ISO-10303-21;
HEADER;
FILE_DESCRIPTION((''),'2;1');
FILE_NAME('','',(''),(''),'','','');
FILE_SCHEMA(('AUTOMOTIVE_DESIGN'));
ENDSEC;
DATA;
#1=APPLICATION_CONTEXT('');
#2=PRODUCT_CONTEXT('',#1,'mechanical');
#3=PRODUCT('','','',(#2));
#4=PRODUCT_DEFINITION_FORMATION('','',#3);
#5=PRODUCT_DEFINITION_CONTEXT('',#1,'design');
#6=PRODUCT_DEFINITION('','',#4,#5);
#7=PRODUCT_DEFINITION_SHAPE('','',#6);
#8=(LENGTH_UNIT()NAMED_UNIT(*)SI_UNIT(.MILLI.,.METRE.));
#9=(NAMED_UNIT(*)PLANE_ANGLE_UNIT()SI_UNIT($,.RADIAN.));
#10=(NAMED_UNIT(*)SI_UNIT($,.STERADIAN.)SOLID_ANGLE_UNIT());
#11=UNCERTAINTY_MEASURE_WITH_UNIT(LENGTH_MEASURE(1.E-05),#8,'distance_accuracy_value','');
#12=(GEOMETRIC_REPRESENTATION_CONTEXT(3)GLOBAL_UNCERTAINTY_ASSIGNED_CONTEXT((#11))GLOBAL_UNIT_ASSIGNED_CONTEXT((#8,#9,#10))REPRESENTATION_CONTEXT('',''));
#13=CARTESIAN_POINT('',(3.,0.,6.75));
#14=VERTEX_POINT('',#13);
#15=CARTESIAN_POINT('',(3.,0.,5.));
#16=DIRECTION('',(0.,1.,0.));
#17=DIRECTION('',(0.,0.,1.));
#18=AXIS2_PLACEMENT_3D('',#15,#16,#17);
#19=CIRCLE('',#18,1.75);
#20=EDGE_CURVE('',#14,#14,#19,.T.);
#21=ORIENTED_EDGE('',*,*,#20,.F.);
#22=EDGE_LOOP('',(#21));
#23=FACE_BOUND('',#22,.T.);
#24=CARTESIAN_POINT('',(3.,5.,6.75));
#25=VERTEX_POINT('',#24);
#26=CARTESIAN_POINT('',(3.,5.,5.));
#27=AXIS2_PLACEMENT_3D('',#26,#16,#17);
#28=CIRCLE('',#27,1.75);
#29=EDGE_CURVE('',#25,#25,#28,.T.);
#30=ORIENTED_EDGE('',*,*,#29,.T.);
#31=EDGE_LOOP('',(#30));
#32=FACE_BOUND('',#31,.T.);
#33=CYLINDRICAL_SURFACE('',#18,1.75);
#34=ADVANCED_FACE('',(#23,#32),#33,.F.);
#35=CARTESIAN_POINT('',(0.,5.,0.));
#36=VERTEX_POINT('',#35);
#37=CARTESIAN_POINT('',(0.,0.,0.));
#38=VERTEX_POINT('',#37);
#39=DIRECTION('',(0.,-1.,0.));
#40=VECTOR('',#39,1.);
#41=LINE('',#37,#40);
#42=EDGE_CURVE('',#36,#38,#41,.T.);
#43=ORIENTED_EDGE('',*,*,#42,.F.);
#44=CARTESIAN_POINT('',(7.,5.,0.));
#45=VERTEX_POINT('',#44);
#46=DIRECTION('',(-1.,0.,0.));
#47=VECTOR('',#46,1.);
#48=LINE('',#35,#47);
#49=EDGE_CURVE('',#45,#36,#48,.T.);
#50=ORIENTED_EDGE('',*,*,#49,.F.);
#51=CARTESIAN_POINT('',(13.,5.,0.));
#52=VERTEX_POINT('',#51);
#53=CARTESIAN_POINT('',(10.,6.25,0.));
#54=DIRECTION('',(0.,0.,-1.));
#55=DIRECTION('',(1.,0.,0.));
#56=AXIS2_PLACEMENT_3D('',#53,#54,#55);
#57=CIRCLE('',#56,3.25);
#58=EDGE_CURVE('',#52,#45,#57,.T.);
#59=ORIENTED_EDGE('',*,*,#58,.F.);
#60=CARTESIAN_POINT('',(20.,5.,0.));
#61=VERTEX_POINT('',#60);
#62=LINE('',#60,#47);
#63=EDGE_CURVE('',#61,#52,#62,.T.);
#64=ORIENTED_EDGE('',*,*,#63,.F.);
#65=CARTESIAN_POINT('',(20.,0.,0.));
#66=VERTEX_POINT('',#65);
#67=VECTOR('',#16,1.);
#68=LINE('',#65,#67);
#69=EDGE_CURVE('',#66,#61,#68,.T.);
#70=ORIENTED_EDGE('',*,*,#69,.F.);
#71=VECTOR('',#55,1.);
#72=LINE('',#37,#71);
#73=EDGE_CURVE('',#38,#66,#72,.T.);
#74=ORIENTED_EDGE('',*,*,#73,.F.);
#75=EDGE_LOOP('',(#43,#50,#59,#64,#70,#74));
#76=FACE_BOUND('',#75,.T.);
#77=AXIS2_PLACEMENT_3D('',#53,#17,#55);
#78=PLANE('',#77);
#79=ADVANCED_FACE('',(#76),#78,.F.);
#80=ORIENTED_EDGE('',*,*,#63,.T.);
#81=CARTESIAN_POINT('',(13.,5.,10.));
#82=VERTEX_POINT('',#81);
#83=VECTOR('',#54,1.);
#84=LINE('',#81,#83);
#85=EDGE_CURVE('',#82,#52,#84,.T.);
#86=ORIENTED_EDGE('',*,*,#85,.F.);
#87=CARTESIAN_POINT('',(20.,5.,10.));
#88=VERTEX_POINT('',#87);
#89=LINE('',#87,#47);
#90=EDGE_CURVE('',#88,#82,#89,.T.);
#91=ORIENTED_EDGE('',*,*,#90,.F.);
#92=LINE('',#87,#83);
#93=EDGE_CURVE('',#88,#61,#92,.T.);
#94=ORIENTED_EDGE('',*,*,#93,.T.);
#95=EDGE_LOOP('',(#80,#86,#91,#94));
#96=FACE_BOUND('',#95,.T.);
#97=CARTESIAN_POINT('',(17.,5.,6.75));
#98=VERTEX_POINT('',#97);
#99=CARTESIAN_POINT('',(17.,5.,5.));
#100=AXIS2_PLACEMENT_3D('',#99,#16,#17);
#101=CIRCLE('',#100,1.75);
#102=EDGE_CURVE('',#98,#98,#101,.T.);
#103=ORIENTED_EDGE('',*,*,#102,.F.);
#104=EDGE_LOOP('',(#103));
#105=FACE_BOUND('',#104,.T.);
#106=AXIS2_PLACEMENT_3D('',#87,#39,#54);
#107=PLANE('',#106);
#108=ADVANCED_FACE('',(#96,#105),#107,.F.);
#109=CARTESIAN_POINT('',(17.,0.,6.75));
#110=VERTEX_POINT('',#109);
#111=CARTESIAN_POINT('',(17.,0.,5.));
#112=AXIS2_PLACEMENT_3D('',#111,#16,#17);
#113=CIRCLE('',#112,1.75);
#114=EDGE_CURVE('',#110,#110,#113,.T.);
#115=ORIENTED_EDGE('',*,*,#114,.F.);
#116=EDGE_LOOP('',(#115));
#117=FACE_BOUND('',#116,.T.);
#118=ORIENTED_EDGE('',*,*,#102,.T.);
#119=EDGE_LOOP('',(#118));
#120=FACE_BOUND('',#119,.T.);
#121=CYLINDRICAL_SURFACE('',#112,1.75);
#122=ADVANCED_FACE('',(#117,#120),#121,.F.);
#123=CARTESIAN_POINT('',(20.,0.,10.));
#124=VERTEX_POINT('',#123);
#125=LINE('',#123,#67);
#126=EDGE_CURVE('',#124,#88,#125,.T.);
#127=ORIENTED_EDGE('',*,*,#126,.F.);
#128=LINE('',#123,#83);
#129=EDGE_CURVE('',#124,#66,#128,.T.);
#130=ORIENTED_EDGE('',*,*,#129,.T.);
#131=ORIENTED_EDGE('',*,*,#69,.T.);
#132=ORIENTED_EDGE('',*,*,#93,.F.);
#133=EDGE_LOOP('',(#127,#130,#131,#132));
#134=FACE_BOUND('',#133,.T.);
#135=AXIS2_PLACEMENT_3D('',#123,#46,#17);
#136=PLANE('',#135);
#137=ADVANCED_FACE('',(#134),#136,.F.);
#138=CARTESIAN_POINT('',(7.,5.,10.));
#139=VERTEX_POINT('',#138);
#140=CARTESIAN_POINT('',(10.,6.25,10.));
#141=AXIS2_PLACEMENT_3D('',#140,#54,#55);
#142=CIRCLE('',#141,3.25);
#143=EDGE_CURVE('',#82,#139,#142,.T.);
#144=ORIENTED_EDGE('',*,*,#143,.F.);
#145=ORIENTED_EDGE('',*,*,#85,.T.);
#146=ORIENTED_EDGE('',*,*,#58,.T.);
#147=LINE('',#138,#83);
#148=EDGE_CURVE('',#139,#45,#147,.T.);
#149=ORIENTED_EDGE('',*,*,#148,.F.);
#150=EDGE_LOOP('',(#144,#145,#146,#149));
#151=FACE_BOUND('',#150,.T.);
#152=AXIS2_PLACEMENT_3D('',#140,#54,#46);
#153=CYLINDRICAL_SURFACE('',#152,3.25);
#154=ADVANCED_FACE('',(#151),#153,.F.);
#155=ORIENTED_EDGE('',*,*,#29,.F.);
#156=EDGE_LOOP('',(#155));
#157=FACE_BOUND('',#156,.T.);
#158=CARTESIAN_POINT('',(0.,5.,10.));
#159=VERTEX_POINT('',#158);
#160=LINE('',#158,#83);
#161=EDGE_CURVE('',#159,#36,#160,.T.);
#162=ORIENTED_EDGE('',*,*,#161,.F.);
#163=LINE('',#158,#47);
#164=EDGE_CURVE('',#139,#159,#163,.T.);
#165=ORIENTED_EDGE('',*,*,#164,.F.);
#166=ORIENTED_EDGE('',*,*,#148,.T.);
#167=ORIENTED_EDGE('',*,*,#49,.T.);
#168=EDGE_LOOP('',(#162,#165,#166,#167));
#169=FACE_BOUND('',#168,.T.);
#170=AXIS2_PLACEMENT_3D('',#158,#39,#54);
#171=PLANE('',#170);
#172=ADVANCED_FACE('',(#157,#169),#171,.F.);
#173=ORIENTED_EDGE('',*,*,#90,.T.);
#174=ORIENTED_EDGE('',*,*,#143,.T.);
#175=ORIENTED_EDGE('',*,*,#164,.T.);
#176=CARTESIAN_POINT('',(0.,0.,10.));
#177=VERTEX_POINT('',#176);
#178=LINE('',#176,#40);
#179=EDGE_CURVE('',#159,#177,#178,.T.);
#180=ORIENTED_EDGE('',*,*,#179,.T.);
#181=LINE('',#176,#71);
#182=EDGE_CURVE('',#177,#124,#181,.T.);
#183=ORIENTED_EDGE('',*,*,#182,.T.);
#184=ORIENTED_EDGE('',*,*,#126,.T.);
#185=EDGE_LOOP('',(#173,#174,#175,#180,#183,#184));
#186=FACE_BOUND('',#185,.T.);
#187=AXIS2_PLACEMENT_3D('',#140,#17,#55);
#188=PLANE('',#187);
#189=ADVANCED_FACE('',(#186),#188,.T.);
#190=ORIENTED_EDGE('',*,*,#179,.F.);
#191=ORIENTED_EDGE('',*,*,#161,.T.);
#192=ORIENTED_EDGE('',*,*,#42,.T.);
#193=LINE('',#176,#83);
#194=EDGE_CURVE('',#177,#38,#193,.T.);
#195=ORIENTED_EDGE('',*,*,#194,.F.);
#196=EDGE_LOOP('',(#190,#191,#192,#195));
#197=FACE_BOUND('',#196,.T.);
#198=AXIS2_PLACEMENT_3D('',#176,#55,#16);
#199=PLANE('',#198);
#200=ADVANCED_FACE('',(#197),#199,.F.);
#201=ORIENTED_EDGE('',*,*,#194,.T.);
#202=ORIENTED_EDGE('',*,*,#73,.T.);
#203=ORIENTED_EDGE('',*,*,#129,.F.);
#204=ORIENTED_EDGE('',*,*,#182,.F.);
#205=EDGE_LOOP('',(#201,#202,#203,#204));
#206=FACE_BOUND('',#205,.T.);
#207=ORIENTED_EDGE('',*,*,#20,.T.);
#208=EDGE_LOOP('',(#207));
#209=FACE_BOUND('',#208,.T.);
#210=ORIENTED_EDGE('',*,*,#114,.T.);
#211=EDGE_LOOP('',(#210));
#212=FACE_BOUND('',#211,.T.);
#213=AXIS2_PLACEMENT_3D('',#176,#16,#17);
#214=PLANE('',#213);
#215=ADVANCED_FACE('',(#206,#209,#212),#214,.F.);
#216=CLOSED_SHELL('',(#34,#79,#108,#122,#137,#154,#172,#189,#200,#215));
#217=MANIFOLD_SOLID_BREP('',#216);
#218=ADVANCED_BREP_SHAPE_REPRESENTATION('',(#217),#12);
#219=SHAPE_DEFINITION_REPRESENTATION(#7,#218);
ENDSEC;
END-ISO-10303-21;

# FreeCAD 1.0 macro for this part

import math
import FreeCAD as App
import Part
import Sketcher

doc = App.newDocument("Part")
body = doc.addObject("PartDesign::Body", "Body")

# Sketch on XY plane
sketch1 = doc.addObject("Sketcher::SketchObject", "Sketch")
body.addObject(sketch1)
sketch1.AttachmentSupport = (doc.XY_Plane, [""])
sketch1.MapMode = "FlatFace"
sketch1.addGeometry([
    Part.LineSegment(App.Vector(0, 0, 0), App.Vector(20, 0, 0)),  # 0
    Part.LineSegment(App.Vector(20, 0, 0), App.Vector(20, 5, 0)),  # 1
    Part.LineSegment(App.Vector(20, 5, 0), App.Vector(13, 5, 0)),  # 2
    Part.ArcOfCircle(Part.Circle(App.Vector(10, 6.25, 0), App.Vector(0, 0, 1), 3.25), math.radians(-157.380135), math.radians(-22.619865)),  # 3
    Part.LineSegment(App.Vector(7, 5, 0), App.Vector(0, 5, 0)),  # 4
    Part.LineSegment(App.Vector(0, 5, 0), App.Vector(0, 0, 0)),  # 5
], False)
sketch1.addConstraint([
    Sketcher.Constraint("Coincident", 0, 2, 1, 1),
    Sketcher.Constraint("Coincident", 1, 2, 2, 1),
    Sketcher.Constraint("Coincident", 2, 2, 3, 2),
    Sketcher.Constraint("Coincident", 3, 1, 4, 1),
    Sketcher.Constraint("Coincident", 4, 2, 5, 1),
    Sketcher.Constraint("Coincident", 5, 2, 0, 1),
    Sketcher.Constraint("Horizontal", 0),
    Sketcher.Constraint("Vertical", 1),
    Sketcher.Constraint("Horizontal", 2),
    Sketcher.Constraint("Horizontal", 4),
    Sketcher.Constraint("Vertical", 5),
    Sketcher.Constraint("Coincident", 5, 2, -1, 1),
    Sketcher.Constraint("Horizontal", 2, 2, 3, 1),
    Sketcher.Constraint("Equal", 2, 4),
    Sketcher.Constraint("DistanceX", 0, 1, 0, 2, 20.0),
    Sketcher.Constraint("DistanceX", 2, 2, 2, 1, 7.0),
    Sketcher.Constraint("DistanceY", 1, 1, 1, 2, 5.0),
    Sketcher.Constraint("Radius", 3, 3.25),
])
pad1 = doc.addObject("PartDesign::Pad", "Pad")
body.addObject(pad1)
pad1.Profile = sketch1
pad1.Length = 10

# Sketch on XZ plane
sketch2 = doc.addObject("Sketcher::SketchObject", "Sketch001")
body.addObject(sketch2)
sketch2.AttachmentSupport = (doc.XZ_Plane, [""])
sketch2.MapMode = "FlatFace"
sketch2.AttachmentOffset = App.Placement(App.Vector(0, 0, -5), App.Rotation())
sketch2.addGeometry([
    Part.Circle(App.Vector(3, 5, 0), App.Vector(0, 0, 1), 1.75),
    Part.Circle(App.Vector(17, 5, 0), App.Vector(0, 0, 1), 1.75),
], False)
sketch2.addConstraint([
    Sketcher.Constraint("Equal", 0, 1),
    Sketcher.Constraint("Horizontal", 0, 3, 1, 3),
    Sketcher.Constraint("Diameter", 0, 3.5),
    Sketcher.Constraint("DistanceX", -1, 1, 0, 3, 3.0),
    Sketcher.Constraint("DistanceY", -1, 1, 0, 3, 5.0),
    Sketcher.Constraint("DistanceX", -1, 1, 1, 3, 17.0),
])
pocket1 = doc.addObject("PartDesign::Pocket", "Pocket")
body.addObject(pocket1)
pocket1.Profile = sketch2
pocket1.Type = "ThroughAll"
pocket1.Reversed = True

doc.recompute()
